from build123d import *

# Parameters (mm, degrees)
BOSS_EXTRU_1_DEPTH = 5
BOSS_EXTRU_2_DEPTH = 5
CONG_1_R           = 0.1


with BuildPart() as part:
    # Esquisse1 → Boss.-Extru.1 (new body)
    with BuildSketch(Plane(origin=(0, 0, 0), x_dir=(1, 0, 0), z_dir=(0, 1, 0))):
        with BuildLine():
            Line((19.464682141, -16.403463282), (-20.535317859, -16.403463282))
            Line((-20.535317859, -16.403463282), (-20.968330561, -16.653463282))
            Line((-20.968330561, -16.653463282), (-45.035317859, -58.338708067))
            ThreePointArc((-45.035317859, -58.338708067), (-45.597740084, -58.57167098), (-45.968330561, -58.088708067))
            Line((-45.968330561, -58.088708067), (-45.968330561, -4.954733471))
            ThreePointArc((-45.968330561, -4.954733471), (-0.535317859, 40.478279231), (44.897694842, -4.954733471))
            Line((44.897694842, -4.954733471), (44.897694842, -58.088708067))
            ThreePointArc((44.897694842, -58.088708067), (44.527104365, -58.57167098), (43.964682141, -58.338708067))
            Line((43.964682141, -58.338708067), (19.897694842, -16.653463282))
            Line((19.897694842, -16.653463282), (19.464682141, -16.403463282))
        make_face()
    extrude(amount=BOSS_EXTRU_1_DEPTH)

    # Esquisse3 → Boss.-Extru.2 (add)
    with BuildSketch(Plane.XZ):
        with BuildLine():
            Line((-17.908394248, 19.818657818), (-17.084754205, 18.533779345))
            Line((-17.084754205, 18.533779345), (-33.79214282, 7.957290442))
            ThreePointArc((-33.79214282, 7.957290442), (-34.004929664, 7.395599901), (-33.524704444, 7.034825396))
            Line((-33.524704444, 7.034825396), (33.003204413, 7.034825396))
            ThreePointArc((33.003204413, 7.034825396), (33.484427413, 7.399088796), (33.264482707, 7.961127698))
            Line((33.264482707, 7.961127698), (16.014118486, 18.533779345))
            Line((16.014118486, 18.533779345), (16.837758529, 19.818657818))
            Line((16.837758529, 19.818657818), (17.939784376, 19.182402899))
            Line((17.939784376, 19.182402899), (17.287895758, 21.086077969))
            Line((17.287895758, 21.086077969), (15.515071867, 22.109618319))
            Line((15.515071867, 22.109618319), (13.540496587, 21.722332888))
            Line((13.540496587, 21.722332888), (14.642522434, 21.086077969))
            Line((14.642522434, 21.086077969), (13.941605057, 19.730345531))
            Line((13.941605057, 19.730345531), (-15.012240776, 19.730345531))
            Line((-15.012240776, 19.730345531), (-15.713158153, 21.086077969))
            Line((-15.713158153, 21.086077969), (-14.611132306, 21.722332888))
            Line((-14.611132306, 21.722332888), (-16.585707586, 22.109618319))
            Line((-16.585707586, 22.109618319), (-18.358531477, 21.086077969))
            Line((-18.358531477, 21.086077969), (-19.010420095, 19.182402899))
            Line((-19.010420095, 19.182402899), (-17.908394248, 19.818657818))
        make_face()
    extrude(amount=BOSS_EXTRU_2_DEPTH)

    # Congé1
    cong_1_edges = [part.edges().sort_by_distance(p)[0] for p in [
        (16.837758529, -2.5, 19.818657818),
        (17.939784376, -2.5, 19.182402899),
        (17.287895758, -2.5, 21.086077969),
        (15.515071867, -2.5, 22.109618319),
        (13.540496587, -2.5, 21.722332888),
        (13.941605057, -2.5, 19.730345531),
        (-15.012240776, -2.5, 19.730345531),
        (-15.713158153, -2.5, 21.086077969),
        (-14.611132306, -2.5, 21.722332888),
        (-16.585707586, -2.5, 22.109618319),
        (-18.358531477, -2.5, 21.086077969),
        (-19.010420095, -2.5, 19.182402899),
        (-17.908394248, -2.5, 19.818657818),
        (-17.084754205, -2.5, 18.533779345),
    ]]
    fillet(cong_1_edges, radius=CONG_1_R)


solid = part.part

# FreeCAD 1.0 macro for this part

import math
import FreeCAD as App
import Part
import Sketcher
from FreeCAD import Vector
Q = App.Units.Quantity


def edges_at(feature, points):
    """Names of the edges that pass closest to the given points."""
    edges = feature.Shape.Edges
    near = lambda p: min(range(len(edges)), key=lambda i: edges[i].distToShape(Part.Vertex(*p))[0])
    return sorted({f"Edge{near(p) + 1}" for p in points})

doc = App.newDocument("Part")
body = doc.addObject("PartDesign::Body", "Body")

# Sketch on XZ plane
sketch1 = body.newObject("Sketcher::SketchObject", "Sketch")
sketch1.AttachmentSupport = (doc.getObject("XZ_Plane"), [""])
sketch1.MapMode = "FlatFace"
sketch1.addGeometry([
    Part.LineSegment(Vector(-20.54, 16.4, 0), Vector(19.46, 16.4, 0)),  # 0
    Part.LineSegment(Vector(19.46, 16.4, 0), Vector(19.9, 16.65, 0)),  # 1
    Part.LineSegment(Vector(19.9, 16.65, 0), Vector(43.96, 58.34, 0)),  # 2
    Part.ArcOfCircle(Part.Circle(Vector(44.4, 58.09, 0), Vector(0, 0, 1), 0.5), math.radians(0), math.radians(150)),  # 3
    Part.LineSegment(Vector(44.9, 58.09, 0), Vector(44.9, 4.95, 0)),  # 4
    Part.ArcOfCircle(Part.Circle(Vector(-0.54, 4.95, 0), Vector(0, 0, 1), 45.43), math.radians(180), math.radians(360)),  # 5
    Part.LineSegment(Vector(-45.97, 4.95, 0), Vector(-45.97, 58.09, 0)),  # 6
    Part.ArcOfCircle(Part.Circle(Vector(-45.47, 58.09, 0), Vector(0, 0, 1), 0.5), math.radians(30), math.radians(180)),  # 7
    Part.LineSegment(Vector(-45.04, 58.34, 0), Vector(-20.97, 16.65, 0)),  # 8
    Part.LineSegment(Vector(-20.97, 16.65, 0), Vector(-20.54, 16.4, 0)),  # 9
], False)
sketch1.addConstraint([
    Sketcher.Constraint("Coincident", 0, 2, 1, 1),
    Sketcher.Constraint("Coincident", 1, 2, 2, 1),
    Sketcher.Constraint("Tangent", 2, 2, 3, 2),
    Sketcher.Constraint("Tangent", 3, 1, 4, 1),
    Sketcher.Constraint("Tangent", 4, 2, 5, 2),
    Sketcher.Constraint("Tangent", 5, 1, 6, 1),
    Sketcher.Constraint("Tangent", 6, 2, 7, 2),
    Sketcher.Constraint("Tangent", 7, 1, 8, 1),
    Sketcher.Constraint("Coincident", 8, 2, 9, 1),
    Sketcher.Constraint("Coincident", 9, 2, 0, 1),
    Sketcher.Constraint("Horizontal", 0),
    Sketcher.Constraint("Vertical", 4),
    Sketcher.Constraint("Vertical", 6),
    Sketcher.Constraint("Equal", 3, 7),
    Sketcher.Constraint("Perpendicular", 1, 8),
    Sketcher.Constraint("Perpendicular", 2, 9),
    Sketcher.Constraint("Horizontal", 3, 3, 7, 3),
    Sketcher.Constraint("Horizontal", 2, 2, 7, 1),
    Sketcher.Constraint("Horizontal", 1, 2, 8, 2),
    Sketcher.Constraint("Radius", 3, 0.5),
    Sketcher.Constraint("DistanceX", 0, 1, 0, 2, 40.0),
    Sketcher.Constraint("Angle", 1, Q("30 deg")),
    Sketcher.Constraint("DistanceX", 1, 2, 3, 1, 25.0),
    Sketcher.Constraint("Distance", 1, 0.5),
    Sketcher.Constraint("DistanceY", 4, 2, 4, 1, 53.133975),
    Sketcher.Constraint("DistanceY", -1, 1, 3, 3, 58.088708),
    Sketcher.Constraint("DistanceX", 7, 3, -1, 1, 45.468331),
])
pad1 = body.newObject("PartDesign::Pad", "Pad")
pad1.Profile = sketch1
pad1.Length = 5
pad1.Reversed = True

# Sketch on XZ plane
sketch2 = body.newObject("Sketcher::SketchObject", "Sketch001")
sketch2.AttachmentSupport = (doc.getObject("XZ_Plane"), [""])
sketch2.MapMode = "FlatFace"
sketch2.addGeometry([
    Part.LineSegment(Vector(-17.9, 19.8, 0), Vector(-17.1, 18.5, 0)),  # 0
    Part.LineSegment(Vector(-17.1, 18.5, 0), Vector(-33.8, 8, 0)),  # 1
    Part.ArcOfCircle(Part.Circle(Vector(-33.5, 7.5, 0), Vector(0, 0, 1), 0.5), math.radians(122), math.radians(270)),  # 2
    Part.LineSegment(Vector(-33.5, 7, 0), Vector(33, 7, 0)),  # 3
    Part.ArcOfCircle(Part.Circle(Vector(33, 7.5, 0), Vector(0, 0, 1), 0.5), math.radians(-90), math.radians(58)),  # 4
    Part.LineSegment(Vector(33.3, 8, 0), Vector(16, 18.5, 0)),  # 5
    Part.LineSegment(Vector(16, 18.5, 0), Vector(16.8, 19.8, 0)),  # 6
    Part.LineSegment(Vector(16.8, 19.8, 0), Vector(17.9, 19.2, 0)),  # 7
    Part.LineSegment(Vector(17.9, 19.2, 0), Vector(17.3, 21.1, 0)),  # 8
    Part.LineSegment(Vector(17.3, 21.1, 0), Vector(15.5, 22.1, 0)),  # 9
    Part.LineSegment(Vector(15.5, 22.1, 0), Vector(13.5, 21.7, 0)),  # 10
    Part.LineSegment(Vector(13.5, 21.7, 0), Vector(14.6, 21.1, 0)),  # 11
    Part.LineSegment(Vector(14.6, 21.1, 0), Vector(13.9, 19.7, 0)),  # 12
    Part.LineSegment(Vector(13.9, 19.7, 0), Vector(-15, 19.7, 0)),  # 13
    Part.LineSegment(Vector(-15, 19.7, 0), Vector(-15.7, 21.1, 0)),  # 14
    Part.LineSegment(Vector(-15.7, 21.1, 0), Vector(-14.6, 21.7, 0)),  # 15
    Part.LineSegment(Vector(-14.6, 21.7, 0), Vector(-16.6, 22.1, 0)),  # 16
    Part.LineSegment(Vector(-16.6, 22.1, 0), Vector(-18.4, 21.1, 0)),  # 17
    Part.LineSegment(Vector(-18.4, 21.1, 0), Vector(-19, 19.2, 0)),  # 18
    Part.LineSegment(Vector(-19, 19.2, 0), Vector(-17.9, 19.8, 0)),  # 19
], False)
sketch2.addConstraint([
    Sketcher.Constraint("Coincident", 0, 2, 1, 1),
    Sketcher.Constraint("Tangent", 1, 2, 2, 1),
    Sketcher.Constraint("Tangent", 2, 2, 3, 1),
    Sketcher.Constraint("Tangent", 3, 2, 4, 1),
    Sketcher.Constraint("Tangent", 4, 2, 5, 1),
    Sketcher.Constraint("Coincident", 5, 2, 6, 1),
    Sketcher.Constraint("Coincident", 6, 2, 7, 1),
    Sketcher.Constraint("Coincident", 7, 2, 8, 1),
    Sketcher.Constraint("Coincident", 8, 2, 9, 1),
    Sketcher.Constraint("Coincident", 9, 2, 10, 1),
    Sketcher.Constraint("Coincident", 10, 2, 11, 1),
    Sketcher.Constraint("Coincident", 11, 2, 12, 1),
    Sketcher.Constraint("Coincident", 12, 2, 13, 1),
    Sketcher.Constraint("Coincident", 13, 2, 14, 1),
    Sketcher.Constraint("Coincident", 14, 2, 15, 1),
    Sketcher.Constraint("Coincident", 15, 2, 16, 1),
    Sketcher.Constraint("Coincident", 16, 2, 17, 1),
    Sketcher.Constraint("Coincident", 17, 2, 18, 1),
    Sketcher.Constraint("Coincident", 18, 2, 19, 1),
    Sketcher.Constraint("Coincident", 19, 2, 0, 1),
    Sketcher.Constraint("Horizontal", 3),
    Sketcher.Constraint("Horizontal", 13),
    Sketcher.Constraint("Equal", 2, 4),
    Sketcher.Constraint("Parallel", 7, 9),
    Sketcher.Constraint("Parallel", 9, 11),
    Sketcher.Constraint("Parallel", 15, 17),
    Sketcher.Constraint("Parallel", 17, 19),
    Sketcher.Constraint("Horizontal", 0, 2, 5, 2),
    Sketcher.Constraint("Horizontal", 8, 2, 11, 2),
    Sketcher.Constraint("Horizontal", 11, 2, 14, 2),
    Sketcher.Constraint("Horizontal", 10, 2, 15, 2),
    Sketcher.Constraint("Horizontal", 9, 2, 16, 2),
    Sketcher.Constraint("Horizontal", 14, 2, 17, 2),
    Sketcher.Constraint("Horizontal", 7, 2, 18, 2),
    Sketcher.Constraint("Horizontal", 6, 2, 19, 2),
    Sketcher.Constraint("Equal", 0, 6),
    Sketcher.Constraint("Equal", 8, 10),
    Sketcher.Constraint("Equal", 7, 11),
    Sketcher.Constraint("Equal", 6, 12),
    Sketcher.Constraint("Equal", 12, 14),
    Sketcher.Constraint("Equal", 11, 15),
    Sketcher.Constraint("Equal", 10, 16),
    Sketcher.Constraint("Equal", 16, 18),
    Sketcher.Constraint("Radius", 2, 0.5),
    Sketcher.Constraint("Angle", 7, Q("-30 deg")),
    Sketcher.Constraint("DistanceX", 3, 1, 3, 2, 66.527909),
    Sketcher.Constraint("DistanceX", 7, 2, 4, 2, 15.324698),
    Sketcher.Constraint("DistanceY", 5, 2, 8, 2, 2.552299),
    Sketcher.Constraint("DistanceX", 10, 2, 8, 2, 3.747399),
    Sketcher.Constraint("Distance", 5, 20.232549),
    Sketcher.Constraint("Distance", 7, 1.27251),
    Sketcher.Constraint("Distance", 9, 2.047081),
    Sketcher.Constraint("DistanceX", 13, 2, 13, 1, 28.953846),
    Sketcher.Constraint("DistanceY", -1, 1, 0, 2, 18.533779),
    Sketcher.Constraint("DistanceY", -1, 1, 1, 2, 7.95729),
    Sketcher.Constraint("DistanceX", -1, 1, 5, 2, 16.014118),
    Sketcher.Constraint("DistanceX", -1, 1, 9, 2, 15.515072),
    Sketcher.Constraint("DistanceX", 13, 2, -1, 1, 15.012241),
])
pad2 = body.newObject("PartDesign::Pad", "Pad001")
pad2.Profile = sketch2
pad2.Length = 5
doc.recompute()

fillet = body.newObject("PartDesign::Fillet", "Fillet")
fillet.Base = (pad2, edges_at(pad2, [
    (16.838, -2.5, 19.819),
    (17.94, -2.5, 19.182),
    (17.288, -2.5, 21.086),
    (15.515, -2.5, 22.11),
    (13.54, -2.5, 21.722),
    (13.942, -2.5, 19.73),
    (-15.012, -2.5, 19.73),
    (-15.713, -2.5, 21.086),
    (-14.611, -2.5, 21.722),
    (-16.586, -2.5, 22.11),
    (-18.359, -2.5, 21.086),
    (-19.01, -2.5, 19.182),
    (-17.908, -2.5, 19.819),
    (-17.085, -2.5, 18.534),
]))
fillet.Radius = 0.1

doc.recompute()
